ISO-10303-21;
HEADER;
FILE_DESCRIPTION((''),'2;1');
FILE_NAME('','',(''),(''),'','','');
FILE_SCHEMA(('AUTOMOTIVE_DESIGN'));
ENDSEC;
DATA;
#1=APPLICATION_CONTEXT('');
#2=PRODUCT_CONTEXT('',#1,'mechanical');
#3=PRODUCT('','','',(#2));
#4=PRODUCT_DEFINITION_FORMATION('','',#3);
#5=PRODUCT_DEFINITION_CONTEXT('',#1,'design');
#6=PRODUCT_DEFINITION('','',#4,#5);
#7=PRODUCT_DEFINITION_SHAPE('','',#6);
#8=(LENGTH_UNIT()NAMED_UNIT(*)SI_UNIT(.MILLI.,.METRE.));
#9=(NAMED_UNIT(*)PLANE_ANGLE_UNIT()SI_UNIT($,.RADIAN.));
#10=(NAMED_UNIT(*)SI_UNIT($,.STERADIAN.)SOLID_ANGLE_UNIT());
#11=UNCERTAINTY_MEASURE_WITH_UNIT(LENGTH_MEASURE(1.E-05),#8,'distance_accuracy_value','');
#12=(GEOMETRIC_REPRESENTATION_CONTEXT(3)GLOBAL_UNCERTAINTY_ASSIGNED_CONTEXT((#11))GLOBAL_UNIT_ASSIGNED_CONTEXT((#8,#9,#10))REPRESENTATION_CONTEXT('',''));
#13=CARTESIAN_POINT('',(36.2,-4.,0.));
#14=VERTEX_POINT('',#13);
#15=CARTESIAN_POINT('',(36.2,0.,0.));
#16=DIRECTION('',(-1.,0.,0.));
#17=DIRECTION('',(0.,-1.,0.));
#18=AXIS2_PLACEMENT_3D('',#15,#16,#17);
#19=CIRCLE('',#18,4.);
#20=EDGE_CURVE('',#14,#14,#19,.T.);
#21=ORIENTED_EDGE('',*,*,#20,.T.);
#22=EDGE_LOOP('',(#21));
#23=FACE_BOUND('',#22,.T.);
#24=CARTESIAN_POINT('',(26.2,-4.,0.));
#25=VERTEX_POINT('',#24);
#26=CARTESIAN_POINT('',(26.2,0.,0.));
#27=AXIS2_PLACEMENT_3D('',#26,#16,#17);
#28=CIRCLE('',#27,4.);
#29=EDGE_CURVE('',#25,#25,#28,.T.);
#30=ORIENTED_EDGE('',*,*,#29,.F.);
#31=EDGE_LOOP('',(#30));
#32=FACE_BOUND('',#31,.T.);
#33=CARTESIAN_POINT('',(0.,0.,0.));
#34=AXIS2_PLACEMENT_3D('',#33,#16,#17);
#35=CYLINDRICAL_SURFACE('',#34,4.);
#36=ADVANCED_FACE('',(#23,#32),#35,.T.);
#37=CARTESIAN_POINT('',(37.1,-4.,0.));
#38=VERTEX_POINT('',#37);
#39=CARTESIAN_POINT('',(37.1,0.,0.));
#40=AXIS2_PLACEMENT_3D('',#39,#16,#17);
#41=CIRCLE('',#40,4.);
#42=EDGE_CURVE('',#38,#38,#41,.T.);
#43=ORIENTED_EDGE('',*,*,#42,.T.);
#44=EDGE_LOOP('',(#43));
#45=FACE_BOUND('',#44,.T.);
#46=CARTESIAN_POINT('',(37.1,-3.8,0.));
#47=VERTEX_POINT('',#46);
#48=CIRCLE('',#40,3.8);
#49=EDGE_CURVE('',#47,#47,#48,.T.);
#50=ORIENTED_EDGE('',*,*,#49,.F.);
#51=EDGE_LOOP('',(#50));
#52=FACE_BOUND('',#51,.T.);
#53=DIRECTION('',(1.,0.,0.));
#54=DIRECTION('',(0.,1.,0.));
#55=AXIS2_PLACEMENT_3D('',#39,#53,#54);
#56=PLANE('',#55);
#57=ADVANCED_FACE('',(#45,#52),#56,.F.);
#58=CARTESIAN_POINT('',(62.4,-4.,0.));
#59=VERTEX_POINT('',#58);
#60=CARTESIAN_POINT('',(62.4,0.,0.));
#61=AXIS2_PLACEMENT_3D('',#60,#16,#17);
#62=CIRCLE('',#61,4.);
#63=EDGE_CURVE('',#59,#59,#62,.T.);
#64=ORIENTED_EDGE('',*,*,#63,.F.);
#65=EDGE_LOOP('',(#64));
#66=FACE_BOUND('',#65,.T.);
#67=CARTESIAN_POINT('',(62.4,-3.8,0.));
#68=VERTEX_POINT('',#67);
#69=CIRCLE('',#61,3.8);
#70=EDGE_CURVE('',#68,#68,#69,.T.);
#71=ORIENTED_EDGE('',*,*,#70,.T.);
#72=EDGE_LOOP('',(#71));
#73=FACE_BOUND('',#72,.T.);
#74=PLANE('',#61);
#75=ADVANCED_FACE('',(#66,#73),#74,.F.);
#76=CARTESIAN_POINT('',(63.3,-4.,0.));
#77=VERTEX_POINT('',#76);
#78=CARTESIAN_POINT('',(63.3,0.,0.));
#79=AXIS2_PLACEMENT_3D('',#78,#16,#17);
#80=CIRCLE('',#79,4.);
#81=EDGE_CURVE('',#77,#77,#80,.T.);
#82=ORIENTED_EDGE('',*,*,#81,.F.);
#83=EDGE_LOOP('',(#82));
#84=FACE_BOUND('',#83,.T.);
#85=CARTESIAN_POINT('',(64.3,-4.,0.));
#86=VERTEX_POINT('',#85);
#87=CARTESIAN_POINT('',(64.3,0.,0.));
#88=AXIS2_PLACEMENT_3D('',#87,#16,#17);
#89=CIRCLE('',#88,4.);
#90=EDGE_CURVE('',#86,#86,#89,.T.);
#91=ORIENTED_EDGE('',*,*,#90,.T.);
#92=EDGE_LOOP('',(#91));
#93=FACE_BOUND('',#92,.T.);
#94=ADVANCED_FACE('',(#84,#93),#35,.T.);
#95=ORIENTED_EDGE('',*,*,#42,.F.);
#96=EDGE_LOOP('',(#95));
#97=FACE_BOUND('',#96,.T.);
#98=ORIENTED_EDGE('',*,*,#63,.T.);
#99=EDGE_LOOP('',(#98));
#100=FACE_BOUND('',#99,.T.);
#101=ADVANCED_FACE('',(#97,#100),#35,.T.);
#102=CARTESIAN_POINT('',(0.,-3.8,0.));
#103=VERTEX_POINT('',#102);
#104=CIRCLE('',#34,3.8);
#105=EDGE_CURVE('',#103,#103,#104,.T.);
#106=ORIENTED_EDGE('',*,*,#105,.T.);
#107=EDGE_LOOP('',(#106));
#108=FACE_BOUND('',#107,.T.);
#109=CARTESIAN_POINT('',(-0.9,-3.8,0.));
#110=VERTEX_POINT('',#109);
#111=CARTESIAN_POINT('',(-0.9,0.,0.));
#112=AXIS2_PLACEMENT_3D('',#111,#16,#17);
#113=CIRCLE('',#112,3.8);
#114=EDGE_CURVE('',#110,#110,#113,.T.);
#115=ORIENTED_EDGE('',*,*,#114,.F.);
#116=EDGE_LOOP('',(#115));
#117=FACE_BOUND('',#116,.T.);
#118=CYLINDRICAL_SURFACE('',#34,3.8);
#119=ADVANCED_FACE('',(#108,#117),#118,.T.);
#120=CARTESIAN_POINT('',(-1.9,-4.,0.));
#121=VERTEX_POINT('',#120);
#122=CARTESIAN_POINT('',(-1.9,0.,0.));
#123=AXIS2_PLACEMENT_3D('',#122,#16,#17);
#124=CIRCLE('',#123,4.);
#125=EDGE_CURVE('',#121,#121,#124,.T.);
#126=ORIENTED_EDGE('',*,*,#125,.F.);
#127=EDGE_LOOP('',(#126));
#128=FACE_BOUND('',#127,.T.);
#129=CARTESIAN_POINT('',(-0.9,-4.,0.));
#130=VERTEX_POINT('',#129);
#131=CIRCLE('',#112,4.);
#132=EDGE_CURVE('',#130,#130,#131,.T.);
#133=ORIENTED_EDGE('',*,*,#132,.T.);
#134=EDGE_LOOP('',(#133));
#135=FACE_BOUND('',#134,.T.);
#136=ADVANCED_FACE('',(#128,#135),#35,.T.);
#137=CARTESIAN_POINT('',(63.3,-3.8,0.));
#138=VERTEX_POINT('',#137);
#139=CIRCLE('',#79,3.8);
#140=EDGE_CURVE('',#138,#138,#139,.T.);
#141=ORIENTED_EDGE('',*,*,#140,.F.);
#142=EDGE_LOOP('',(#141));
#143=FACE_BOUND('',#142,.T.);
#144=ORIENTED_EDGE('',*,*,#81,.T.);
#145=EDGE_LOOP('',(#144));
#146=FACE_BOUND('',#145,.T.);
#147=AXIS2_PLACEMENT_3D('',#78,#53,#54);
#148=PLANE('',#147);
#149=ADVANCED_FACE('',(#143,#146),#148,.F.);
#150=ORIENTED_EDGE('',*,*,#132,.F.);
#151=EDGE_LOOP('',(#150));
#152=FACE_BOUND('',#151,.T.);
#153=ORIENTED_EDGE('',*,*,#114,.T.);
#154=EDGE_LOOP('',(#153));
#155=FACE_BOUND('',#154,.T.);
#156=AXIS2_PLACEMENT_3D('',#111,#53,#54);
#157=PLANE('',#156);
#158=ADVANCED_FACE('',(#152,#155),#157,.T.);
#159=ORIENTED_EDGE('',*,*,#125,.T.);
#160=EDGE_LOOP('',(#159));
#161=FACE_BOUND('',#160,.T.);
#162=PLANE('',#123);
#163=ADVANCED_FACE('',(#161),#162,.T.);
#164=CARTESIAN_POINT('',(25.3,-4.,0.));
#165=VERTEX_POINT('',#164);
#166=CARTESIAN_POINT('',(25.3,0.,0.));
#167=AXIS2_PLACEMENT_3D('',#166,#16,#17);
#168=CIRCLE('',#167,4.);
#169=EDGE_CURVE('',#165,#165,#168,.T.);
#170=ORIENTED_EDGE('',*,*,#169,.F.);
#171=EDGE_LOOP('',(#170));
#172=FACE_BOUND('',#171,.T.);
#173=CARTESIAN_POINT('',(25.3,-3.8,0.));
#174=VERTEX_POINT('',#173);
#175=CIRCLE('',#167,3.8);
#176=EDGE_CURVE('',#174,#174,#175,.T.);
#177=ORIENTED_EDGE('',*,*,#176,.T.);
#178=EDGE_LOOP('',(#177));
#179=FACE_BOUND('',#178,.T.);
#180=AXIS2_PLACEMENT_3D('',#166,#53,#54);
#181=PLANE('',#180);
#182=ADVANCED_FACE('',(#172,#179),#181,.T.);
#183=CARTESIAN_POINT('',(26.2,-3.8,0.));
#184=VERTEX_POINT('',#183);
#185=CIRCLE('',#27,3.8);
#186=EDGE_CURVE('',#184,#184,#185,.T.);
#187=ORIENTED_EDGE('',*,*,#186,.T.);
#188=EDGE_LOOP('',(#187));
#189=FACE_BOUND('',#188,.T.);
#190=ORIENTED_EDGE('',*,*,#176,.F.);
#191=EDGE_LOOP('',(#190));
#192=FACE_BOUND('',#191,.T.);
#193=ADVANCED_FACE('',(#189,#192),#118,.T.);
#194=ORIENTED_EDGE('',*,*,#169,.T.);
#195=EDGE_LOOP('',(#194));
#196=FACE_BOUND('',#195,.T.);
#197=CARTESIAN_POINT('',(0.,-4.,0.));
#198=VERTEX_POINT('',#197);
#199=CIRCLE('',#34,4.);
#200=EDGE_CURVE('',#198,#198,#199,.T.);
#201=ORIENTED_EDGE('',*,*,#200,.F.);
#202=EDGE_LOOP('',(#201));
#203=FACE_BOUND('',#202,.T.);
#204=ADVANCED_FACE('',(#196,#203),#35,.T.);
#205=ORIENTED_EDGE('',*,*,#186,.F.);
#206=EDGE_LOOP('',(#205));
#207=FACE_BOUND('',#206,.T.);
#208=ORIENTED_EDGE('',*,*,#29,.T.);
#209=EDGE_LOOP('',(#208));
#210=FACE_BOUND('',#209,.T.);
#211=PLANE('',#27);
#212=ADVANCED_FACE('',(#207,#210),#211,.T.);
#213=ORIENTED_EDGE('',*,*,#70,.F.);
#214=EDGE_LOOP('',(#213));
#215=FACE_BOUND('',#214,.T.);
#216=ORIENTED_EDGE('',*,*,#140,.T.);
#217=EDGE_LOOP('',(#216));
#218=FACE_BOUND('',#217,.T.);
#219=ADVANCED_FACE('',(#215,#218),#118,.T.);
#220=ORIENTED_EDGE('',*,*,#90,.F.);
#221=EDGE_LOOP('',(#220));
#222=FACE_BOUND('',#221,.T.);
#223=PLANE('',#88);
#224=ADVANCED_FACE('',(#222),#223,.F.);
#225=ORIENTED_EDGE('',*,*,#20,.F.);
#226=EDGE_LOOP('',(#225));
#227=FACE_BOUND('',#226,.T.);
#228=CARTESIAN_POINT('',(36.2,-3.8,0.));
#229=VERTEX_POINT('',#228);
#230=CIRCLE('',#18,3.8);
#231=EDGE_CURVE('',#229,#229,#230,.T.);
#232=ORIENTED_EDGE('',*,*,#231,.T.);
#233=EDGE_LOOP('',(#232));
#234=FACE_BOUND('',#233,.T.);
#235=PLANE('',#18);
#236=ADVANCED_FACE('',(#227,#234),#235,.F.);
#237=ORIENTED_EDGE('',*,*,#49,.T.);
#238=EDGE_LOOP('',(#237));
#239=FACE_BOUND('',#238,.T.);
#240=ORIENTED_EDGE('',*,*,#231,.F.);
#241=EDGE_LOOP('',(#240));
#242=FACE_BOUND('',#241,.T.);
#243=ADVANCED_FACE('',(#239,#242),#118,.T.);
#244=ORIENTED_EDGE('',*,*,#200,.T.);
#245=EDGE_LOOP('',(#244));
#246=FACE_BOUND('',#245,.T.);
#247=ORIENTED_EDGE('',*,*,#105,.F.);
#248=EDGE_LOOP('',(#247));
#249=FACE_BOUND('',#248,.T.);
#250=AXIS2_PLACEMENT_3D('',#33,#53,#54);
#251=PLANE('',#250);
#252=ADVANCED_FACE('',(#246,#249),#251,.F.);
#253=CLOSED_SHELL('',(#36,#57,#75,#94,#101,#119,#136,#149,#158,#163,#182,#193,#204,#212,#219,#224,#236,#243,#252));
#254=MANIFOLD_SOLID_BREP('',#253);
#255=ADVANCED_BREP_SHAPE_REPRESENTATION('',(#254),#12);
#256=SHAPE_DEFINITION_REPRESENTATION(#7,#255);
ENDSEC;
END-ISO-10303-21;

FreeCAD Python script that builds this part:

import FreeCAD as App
import Part
import Sketcher
from FreeCAD import Vector


def add_polygon(sketch, points):
    """Adds a closed chain of lines whose ends are joined by coincident constraints."""
    first, n = sketch.GeometryCount, len(points)
    for a, b in zip(points, points[1:] + points[:1]):
        sketch.addGeometry(Part.LineSegment(App.Vector(*a, 0), App.Vector(*b, 0)), False)
    for i in range(n):
        sketch.addConstraint(Sketcher.Constraint("Coincident", first + i, 2, first + (i + 1) % n, 1))

doc = App.newDocument("Part")
params = doc.addObject("Spreadsheet::Sheet", "Params")
for row, (alias, value) in enumerate([
    ("sketch1_width", "1 mm"),
    ("sketch1_width2", "10 mm"),
    ("sketch1_height", "4 mm"),
    ("sketch1_width3", "0.9 mm"),
    ("sketch1_width4", "25.3 mm"),
    ("revolution_angle", "360 deg"),
], start=1):
    params.set(f"A{row}", alias)
    params.set(f"B{row}", "=" + value)
    params.setAlias(f"B{row}", alias)

body = doc.addObject("PartDesign::Body", "Body")

# Sketch on XY plane
sketch1 = body.newObject("Sketcher::SketchObject", "Sketch")
sketch1.AttachmentSupport = (doc.getObject("XY_Plane"), [""])
sketch1.MapMode = "FlatFace"
add_polygon(sketch1, [(64.3, 0), (64.3, 4), (63.3, 4), (63.3, 3.8), (62.4, 3.8), (62.4, 4), (37.1, 4), (37.1, 3.8), (36.2, 3.8), (36.2, 4), (26.2, 4), (26.2, 3.8), (25.3, 3.8), (25.3, 4), (0, 4), (0, 3.8), (-0.9, 3.8), (-0.9, 4), (-1.9, 4), (-1.9, 0)])  # lines 0-19
sketch1.addConstraint(Sketcher.Constraint("Vertical", 0))
sketch1.addConstraint(Sketcher.Constraint("Horizontal", 1))
sketch1.addConstraint(Sketcher.Constraint("Vertical", 2))
sketch1.addConstraint(Sketcher.Constraint("Horizontal", 3))
sketch1.addConstraint(Sketcher.Constraint("Vertical", 4))
sketch1.addConstraint(Sketcher.Constraint("Horizontal", 5))
sketch1.addConstraint(Sketcher.Constraint("Vertical", 6))
sketch1.addConstraint(Sketcher.Constraint("Horizontal", 7))
sketch1.addConstraint(Sketcher.Constraint("Vertical", 8))
sketch1.addConstraint(Sketcher.Constraint("Horizontal", 9))
sketch1.addConstraint(Sketcher.Constraint("Vertical", 10))
sketch1.addConstraint(Sketcher.Constraint("Horizontal", 11))
sketch1.addConstraint(Sketcher.Constraint("Vertical", 12))
sketch1.addConstraint(Sketcher.Constraint("Horizontal", 13))
sketch1.addConstraint(Sketcher.Constraint("Vertical", 14))
sketch1.addConstraint(Sketcher.Constraint("Horizontal", 15))
sketch1.addConstraint(Sketcher.Constraint("Vertical", 16))
sketch1.addConstraint(Sketcher.Constraint("Horizontal", 17))
sketch1.addConstraint(Sketcher.Constraint("Vertical", 18))
sketch1.addConstraint(Sketcher.Constraint("Horizontal", 19))
sketch1.addConstraint(Sketcher.Constraint("PointOnObject", 13, 2, -2))
sketch1.addConstraint(Sketcher.Constraint("PointOnObject", 18, 2, -1))
sketch1.addConstraint(Sketcher.Constraint("Horizontal", 1, 2, 4, 2))
sketch1.addConstraint(Sketcher.Constraint("Horizontal", 3, 2, 6, 2))
sketch1.addConstraint(Sketcher.Constraint("Horizontal", 5, 2, 8, 2))
sketch1.addConstraint(Sketcher.Constraint("Horizontal", 7, 2, 10, 2))
sketch1.addConstraint(Sketcher.Constraint("Horizontal", 9, 2, 12, 2))
sketch1.addConstraint(Sketcher.Constraint("Horizontal", 11, 2, 14, 2))
sketch1.addConstraint(Sketcher.Constraint("Horizontal", 13, 2, 16, 2))
sketch1.addConstraint(Sketcher.Constraint("Equal", 3, 7))
sketch1.addConstraint(Sketcher.Constraint("Equal", 7, 11))
sketch1.addConstraint(Sketcher.Constraint("Equal", 5, 13))
sketch1.addConstraint(Sketcher.Constraint("Equal", 11, 15))
sketch1.addConstraint(Sketcher.Constraint("Equal", 1, 17))
sketch1.addConstraint(Sketcher.Constraint("DistanceX", 1, 2, 1, 1, 1.0))
sketch1.addConstraint(Sketcher.Constraint("DistanceX", 9, 2, 9, 1, 10.0))
sketch1.addConstraint(Sketcher.Constraint("DistanceY", 0, 1, 0, 2, 4.0))
sketch1.addConstraint(Sketcher.Constraint("DistanceX", 3, 2, 3, 1, 0.9))
sketch1.addConstraint(Sketcher.Constraint("DistanceX", 5, 2, 5, 1, 25.3))
sketch1.addConstraint(Sketcher.Constraint("DistanceY", 2, 2, 2, 1, 0.2))
sketch1.setExpression("Constraints[54]", "Params.sketch1_width")
sketch1.setExpression("Constraints[55]", "Params.sketch1_width2")
sketch1.setExpression("Constraints[56]", "Params.sketch1_height")
sketch1.setExpression("Constraints[57]", "Params.sketch1_width3")
sketch1.setExpression("Constraints[58]", "Params.sketch1_width4")
revolution = body.newObject("PartDesign::Revolution", "Revolution")
revolution.Profile = sketch1
revolution.ReferenceAxis = (sketch1, ["H_Axis"])
revolution.setExpression("Angle", "Params.revolution_angle")

doc.recompute()
